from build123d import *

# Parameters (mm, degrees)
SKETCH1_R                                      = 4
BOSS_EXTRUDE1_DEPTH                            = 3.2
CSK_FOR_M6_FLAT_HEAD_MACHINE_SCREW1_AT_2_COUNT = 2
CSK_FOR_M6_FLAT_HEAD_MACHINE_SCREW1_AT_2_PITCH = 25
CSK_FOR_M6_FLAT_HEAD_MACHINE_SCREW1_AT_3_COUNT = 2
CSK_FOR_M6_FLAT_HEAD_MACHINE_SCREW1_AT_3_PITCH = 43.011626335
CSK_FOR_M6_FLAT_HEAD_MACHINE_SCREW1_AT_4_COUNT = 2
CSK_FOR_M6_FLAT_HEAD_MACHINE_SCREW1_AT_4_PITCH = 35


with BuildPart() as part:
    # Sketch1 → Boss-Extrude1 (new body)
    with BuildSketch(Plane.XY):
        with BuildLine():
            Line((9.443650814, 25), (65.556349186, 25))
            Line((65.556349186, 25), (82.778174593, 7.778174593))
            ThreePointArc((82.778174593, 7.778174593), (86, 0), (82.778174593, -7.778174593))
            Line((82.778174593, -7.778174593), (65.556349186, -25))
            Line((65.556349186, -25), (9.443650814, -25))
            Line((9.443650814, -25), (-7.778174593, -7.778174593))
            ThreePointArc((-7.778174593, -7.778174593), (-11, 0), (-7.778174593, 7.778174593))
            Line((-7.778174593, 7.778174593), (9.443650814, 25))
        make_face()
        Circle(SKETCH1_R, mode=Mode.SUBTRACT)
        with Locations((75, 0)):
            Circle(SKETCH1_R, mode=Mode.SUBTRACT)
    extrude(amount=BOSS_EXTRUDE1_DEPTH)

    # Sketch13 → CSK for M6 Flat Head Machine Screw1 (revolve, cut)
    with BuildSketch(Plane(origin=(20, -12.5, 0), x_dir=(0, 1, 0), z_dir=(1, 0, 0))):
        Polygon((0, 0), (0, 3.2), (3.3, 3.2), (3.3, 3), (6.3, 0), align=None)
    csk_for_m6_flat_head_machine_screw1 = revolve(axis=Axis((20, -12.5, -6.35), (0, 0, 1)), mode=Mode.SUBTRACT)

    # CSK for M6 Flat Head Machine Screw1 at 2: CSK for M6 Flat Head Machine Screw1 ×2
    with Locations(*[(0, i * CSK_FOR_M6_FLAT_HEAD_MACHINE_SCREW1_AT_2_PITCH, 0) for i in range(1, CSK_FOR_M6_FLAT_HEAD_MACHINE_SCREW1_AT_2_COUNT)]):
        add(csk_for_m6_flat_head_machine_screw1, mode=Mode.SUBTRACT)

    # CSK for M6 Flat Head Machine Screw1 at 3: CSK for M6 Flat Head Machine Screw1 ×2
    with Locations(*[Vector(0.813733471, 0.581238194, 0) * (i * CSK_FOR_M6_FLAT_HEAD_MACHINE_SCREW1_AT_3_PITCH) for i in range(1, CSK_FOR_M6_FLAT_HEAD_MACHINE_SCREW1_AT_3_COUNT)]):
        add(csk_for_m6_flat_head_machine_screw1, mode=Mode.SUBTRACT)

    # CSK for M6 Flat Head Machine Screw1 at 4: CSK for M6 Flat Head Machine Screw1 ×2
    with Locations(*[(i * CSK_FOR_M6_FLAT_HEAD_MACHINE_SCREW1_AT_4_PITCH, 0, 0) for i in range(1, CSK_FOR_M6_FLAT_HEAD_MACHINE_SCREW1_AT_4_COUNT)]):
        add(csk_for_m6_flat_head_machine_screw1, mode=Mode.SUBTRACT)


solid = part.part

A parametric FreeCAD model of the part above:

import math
import FreeCAD as App
import Part
import Sketcher
from FreeCAD import Vector
Q = App.Units.Quantity


def add_polygon(sketch, points):
    """Adds a closed chain of lines whose ends are joined by coincident constraints."""
    first, n = sketch.GeometryCount, len(points)
    for a, b in zip(points, points[1:] + points[:1]):
        sketch.addGeometry(Part.LineSegment(App.Vector(*a, 0), App.Vector(*b, 0)), False)
    for i in range(n):
        sketch.addConstraint(Sketcher.Constraint("Coincident", first + i, 2, first + (i + 1) % n, 1))

doc = App.newDocument("Part")
params = doc.addObject("Spreadsheet::Sheet", "Params")
for row, (alias, value) in enumerate([
    ("sketch1_diameter", "8 mm"),
    ("sketch1_radius", "11 mm"),
    ("pad1_length", "3.2 mm"),
    ("sketch2_width", "6.3 mm"),
    ("sketch2_width2", "3.3 mm"),
    ("sketch2_height", "3.2 mm"),
    ("groove_angle", "360 deg"),
    ("linearpattern_pitch", "25 mm"),
    ("linearpattern2_pitch", "43.011626 mm"),
    ("linearpattern3_pitch", "35 mm"),
], start=1):
    params.set(f"A{row}", alias)
    params.set(f"B{row}", "=" + value)
    params.setAlias(f"B{row}", alias)

body = doc.addObject("PartDesign::Body", "Body")

# Sketch on XY plane
sketch1 = doc.addObject("Sketcher::SketchObject", "Sketch")
body.addObject(sketch1)
sketch1.AttachmentSupport = (doc.XY_Plane, [""])
sketch1.MapMode = "FlatFace"
sketch1.addGeometry([
    Part.LineSegment(Vector(65.6, 25, 0), Vector(9.4, 25, 0)),  # 0
    Part.LineSegment(Vector(9.4, 25, 0), Vector(-7.8, 7.8, 0)),  # 1
    Part.ArcOfCircle(Part.Circle(Vector(0, 0, 0), Vector(0, 0, 1), 11), math.radians(135), math.radians(225)),  # 2
    Part.LineSegment(Vector(-7.8, -7.8, 0), Vector(9.4, -25, 0)),  # 3
    Part.LineSegment(Vector(9.4, -25, 0), Vector(65.6, -25, 0)),  # 4
    Part.LineSegment(Vector(65.6, -25, 0), Vector(82.8, -7.8, 0)),  # 5
    Part.ArcOfCircle(Part.Circle(Vector(75, 0, 0), Vector(0, 0, 1), 11), math.radians(-45), math.radians(45)),  # 6
    Part.LineSegment(Vector(82.8, 7.8, 0), Vector(65.6, 25, 0)),  # 7
    Part.Circle(Vector(75, 0, 0), Vector(0, 0, 1), 4),  # 8
    Part.Circle(Vector(0, 0, 0), Vector(0, 0, 1), 4),  # 9
], False)
sketch1.addConstraint([
    Sketcher.Constraint("Coincident", 0, 2, 1, 1),
    Sketcher.Constraint("Tangent", 1, 2, 2, 1),
    Sketcher.Constraint("Tangent", 2, 2, 3, 1),
    Sketcher.Constraint("Coincident", 3, 2, 4, 1),
    Sketcher.Constraint("Coincident", 4, 2, 5, 1),
    Sketcher.Constraint("Tangent", 5, 2, 6, 1),
    Sketcher.Constraint("Tangent", 6, 2, 7, 1),
    Sketcher.Constraint("Coincident", 7, 2, 0, 1),
    Sketcher.Constraint("Horizontal", 0),
    Sketcher.Constraint("Horizontal", 4),
    Sketcher.Constraint("Coincident", 2, 3, -1, 1),
    Sketcher.Constraint("Coincident", 9, 3, -1, 1),
    Sketcher.Constraint("Coincident", 8, 3, 6, 3),
    Sketcher.Constraint("Equal", 2, 6),
    Sketcher.Constraint("Equal", 8, 9),
    Sketcher.Constraint("Symmetric", 0, 2, 3, 2, -1),
    Sketcher.Constraint("Symmetric", 5, 2, 6, 2, -1),
    Sketcher.Constraint("Perpendicular", 1, 3),
    Sketcher.Constraint("Perpendicular", 3, 5),
    Sketcher.Constraint("Diameter", 8, 8.0),
    Sketcher.Constraint("Radius", 2, 11.0),
    Sketcher.Constraint("DistanceX", -1, 1, 6, 3, 75.0),
    Sketcher.Constraint("DistanceY", -1, 1, 0, 2, 25.0),
])
sketch1.setExpression("Constraints[19]", "Params.sketch1_diameter")
sketch1.setExpression("Constraints[20]", "Params.sketch1_radius")
pad1 = doc.addObject("PartDesign::Pad", "Pad")
body.addObject(pad1)
pad1.Profile = sketch1
pad1.setExpression("Length", "Params.pad1_length")

# Sketch on YZ plane
sketch2 = doc.addObject("Sketcher::SketchObject", "Sketch001")
body.addObject(sketch2)
sketch2.AttachmentSupport = (doc.YZ_Plane, [""])
sketch2.MapMode = "FlatFace"
sketch2.AttachmentOffset = App.Placement(Vector(0, 0, 20), App.Rotation())
add_polygon(sketch2, [(-12.5, 3.2), (-12.5, 0), (-6.2, 0), (-9.2, 3), (-9.2, 3.2)])  # lines 0-4
sketch2.addGeometry(Part.LineSegment(Vector(-12.5, 0, 0), Vector(-12.5, 3.2, 0)), True)  # axis
sketch2.addConstraint([
    Sketcher.Constraint("Vertical", 0),
    Sketcher.Constraint("Horizontal", 1),
    Sketcher.Constraint("Vertical", 3),
    Sketcher.Constraint("Horizontal", 4),
    Sketcher.Constraint("Vertical", 5),
    Sketcher.Constraint("Coincident", 5, 1, 0, 2),
    Sketcher.Constraint("PointOnObject", 0, 2, -1),
    Sketcher.Constraint("Horizontal", 3, 2, 5, 2),
    Sketcher.Constraint("Angle", 2, Q("135 deg")),
    Sketcher.Constraint("DistanceX", 1, 1, 1, 2, 6.3),
    Sketcher.Constraint("DistanceX", 4, 2, 4, 1, 3.3),
    Sketcher.Constraint("DistanceY", 0, 2, 0, 1, 3.2),
    Sketcher.Constraint("DistanceX", 0, 2, -1, 1, 12.5),
])
sketch2.setExpression("Constraints[14]", "Params.sketch2_width")
sketch2.setExpression("Constraints[15]", "Params.sketch2_width2")
sketch2.setExpression("Constraints[16]", "Params.sketch2_height")
groove = doc.addObject("PartDesign::Groove", "Groove")
body.addObject(groove)
groove.Profile = sketch2
groove.ReferenceAxis = (sketch2, ["Axis0"])
groove.setExpression("Angle", "Params.groove_angle")
doc.recompute()

linearpattern = doc.addObject("PartDesign::LinearPattern", "LinearPattern")
body.addObject(linearpattern)
linearpattern.Originals = [groove]
linearpattern.Direction = (doc.Y_Axis, [""])
linearpattern.Mode = "offset"
linearpattern.setExpression("Offset", "Params.linearpattern_pitch")
linearpattern.Occurrences = 2
body.Tip = linearpattern
doc.recompute()

datumline = doc.addObject("PartDesign::Line", "DatumLine")
body.addObject(datumline)
datumline.Placement = App.Placement(Vector(0, 0, 0), App.Rotation(Vector(0, 0, 1), Vector(0.813733471, 0.581238194, 0)))
linearpattern2 = doc.addObject("PartDesign::LinearPattern", "LinearPattern001")
body.addObject(linearpattern2)
linearpattern2.Originals = [groove]
linearpattern2.Direction = (datumline, [""])
linearpattern2.Mode = "offset"
linearpattern2.setExpression("Offset", "Params.linearpattern2_pitch")
linearpattern2.Occurrences = 2
body.Tip = linearpattern2
doc.recompute()

linearpattern3 = doc.addObject("PartDesign::LinearPattern", "LinearPattern002")
body.addObject(linearpattern3)
linearpattern3.Originals = [groove]
linearpattern3.Direction = (doc.X_Axis, [""])
linearpattern3.Mode = "offset"
linearpattern3.setExpression("Offset", "Params.linearpattern3_pitch")
linearpattern3.Occurrences = 2
body.Tip = linearpattern3

doc.recompute()
